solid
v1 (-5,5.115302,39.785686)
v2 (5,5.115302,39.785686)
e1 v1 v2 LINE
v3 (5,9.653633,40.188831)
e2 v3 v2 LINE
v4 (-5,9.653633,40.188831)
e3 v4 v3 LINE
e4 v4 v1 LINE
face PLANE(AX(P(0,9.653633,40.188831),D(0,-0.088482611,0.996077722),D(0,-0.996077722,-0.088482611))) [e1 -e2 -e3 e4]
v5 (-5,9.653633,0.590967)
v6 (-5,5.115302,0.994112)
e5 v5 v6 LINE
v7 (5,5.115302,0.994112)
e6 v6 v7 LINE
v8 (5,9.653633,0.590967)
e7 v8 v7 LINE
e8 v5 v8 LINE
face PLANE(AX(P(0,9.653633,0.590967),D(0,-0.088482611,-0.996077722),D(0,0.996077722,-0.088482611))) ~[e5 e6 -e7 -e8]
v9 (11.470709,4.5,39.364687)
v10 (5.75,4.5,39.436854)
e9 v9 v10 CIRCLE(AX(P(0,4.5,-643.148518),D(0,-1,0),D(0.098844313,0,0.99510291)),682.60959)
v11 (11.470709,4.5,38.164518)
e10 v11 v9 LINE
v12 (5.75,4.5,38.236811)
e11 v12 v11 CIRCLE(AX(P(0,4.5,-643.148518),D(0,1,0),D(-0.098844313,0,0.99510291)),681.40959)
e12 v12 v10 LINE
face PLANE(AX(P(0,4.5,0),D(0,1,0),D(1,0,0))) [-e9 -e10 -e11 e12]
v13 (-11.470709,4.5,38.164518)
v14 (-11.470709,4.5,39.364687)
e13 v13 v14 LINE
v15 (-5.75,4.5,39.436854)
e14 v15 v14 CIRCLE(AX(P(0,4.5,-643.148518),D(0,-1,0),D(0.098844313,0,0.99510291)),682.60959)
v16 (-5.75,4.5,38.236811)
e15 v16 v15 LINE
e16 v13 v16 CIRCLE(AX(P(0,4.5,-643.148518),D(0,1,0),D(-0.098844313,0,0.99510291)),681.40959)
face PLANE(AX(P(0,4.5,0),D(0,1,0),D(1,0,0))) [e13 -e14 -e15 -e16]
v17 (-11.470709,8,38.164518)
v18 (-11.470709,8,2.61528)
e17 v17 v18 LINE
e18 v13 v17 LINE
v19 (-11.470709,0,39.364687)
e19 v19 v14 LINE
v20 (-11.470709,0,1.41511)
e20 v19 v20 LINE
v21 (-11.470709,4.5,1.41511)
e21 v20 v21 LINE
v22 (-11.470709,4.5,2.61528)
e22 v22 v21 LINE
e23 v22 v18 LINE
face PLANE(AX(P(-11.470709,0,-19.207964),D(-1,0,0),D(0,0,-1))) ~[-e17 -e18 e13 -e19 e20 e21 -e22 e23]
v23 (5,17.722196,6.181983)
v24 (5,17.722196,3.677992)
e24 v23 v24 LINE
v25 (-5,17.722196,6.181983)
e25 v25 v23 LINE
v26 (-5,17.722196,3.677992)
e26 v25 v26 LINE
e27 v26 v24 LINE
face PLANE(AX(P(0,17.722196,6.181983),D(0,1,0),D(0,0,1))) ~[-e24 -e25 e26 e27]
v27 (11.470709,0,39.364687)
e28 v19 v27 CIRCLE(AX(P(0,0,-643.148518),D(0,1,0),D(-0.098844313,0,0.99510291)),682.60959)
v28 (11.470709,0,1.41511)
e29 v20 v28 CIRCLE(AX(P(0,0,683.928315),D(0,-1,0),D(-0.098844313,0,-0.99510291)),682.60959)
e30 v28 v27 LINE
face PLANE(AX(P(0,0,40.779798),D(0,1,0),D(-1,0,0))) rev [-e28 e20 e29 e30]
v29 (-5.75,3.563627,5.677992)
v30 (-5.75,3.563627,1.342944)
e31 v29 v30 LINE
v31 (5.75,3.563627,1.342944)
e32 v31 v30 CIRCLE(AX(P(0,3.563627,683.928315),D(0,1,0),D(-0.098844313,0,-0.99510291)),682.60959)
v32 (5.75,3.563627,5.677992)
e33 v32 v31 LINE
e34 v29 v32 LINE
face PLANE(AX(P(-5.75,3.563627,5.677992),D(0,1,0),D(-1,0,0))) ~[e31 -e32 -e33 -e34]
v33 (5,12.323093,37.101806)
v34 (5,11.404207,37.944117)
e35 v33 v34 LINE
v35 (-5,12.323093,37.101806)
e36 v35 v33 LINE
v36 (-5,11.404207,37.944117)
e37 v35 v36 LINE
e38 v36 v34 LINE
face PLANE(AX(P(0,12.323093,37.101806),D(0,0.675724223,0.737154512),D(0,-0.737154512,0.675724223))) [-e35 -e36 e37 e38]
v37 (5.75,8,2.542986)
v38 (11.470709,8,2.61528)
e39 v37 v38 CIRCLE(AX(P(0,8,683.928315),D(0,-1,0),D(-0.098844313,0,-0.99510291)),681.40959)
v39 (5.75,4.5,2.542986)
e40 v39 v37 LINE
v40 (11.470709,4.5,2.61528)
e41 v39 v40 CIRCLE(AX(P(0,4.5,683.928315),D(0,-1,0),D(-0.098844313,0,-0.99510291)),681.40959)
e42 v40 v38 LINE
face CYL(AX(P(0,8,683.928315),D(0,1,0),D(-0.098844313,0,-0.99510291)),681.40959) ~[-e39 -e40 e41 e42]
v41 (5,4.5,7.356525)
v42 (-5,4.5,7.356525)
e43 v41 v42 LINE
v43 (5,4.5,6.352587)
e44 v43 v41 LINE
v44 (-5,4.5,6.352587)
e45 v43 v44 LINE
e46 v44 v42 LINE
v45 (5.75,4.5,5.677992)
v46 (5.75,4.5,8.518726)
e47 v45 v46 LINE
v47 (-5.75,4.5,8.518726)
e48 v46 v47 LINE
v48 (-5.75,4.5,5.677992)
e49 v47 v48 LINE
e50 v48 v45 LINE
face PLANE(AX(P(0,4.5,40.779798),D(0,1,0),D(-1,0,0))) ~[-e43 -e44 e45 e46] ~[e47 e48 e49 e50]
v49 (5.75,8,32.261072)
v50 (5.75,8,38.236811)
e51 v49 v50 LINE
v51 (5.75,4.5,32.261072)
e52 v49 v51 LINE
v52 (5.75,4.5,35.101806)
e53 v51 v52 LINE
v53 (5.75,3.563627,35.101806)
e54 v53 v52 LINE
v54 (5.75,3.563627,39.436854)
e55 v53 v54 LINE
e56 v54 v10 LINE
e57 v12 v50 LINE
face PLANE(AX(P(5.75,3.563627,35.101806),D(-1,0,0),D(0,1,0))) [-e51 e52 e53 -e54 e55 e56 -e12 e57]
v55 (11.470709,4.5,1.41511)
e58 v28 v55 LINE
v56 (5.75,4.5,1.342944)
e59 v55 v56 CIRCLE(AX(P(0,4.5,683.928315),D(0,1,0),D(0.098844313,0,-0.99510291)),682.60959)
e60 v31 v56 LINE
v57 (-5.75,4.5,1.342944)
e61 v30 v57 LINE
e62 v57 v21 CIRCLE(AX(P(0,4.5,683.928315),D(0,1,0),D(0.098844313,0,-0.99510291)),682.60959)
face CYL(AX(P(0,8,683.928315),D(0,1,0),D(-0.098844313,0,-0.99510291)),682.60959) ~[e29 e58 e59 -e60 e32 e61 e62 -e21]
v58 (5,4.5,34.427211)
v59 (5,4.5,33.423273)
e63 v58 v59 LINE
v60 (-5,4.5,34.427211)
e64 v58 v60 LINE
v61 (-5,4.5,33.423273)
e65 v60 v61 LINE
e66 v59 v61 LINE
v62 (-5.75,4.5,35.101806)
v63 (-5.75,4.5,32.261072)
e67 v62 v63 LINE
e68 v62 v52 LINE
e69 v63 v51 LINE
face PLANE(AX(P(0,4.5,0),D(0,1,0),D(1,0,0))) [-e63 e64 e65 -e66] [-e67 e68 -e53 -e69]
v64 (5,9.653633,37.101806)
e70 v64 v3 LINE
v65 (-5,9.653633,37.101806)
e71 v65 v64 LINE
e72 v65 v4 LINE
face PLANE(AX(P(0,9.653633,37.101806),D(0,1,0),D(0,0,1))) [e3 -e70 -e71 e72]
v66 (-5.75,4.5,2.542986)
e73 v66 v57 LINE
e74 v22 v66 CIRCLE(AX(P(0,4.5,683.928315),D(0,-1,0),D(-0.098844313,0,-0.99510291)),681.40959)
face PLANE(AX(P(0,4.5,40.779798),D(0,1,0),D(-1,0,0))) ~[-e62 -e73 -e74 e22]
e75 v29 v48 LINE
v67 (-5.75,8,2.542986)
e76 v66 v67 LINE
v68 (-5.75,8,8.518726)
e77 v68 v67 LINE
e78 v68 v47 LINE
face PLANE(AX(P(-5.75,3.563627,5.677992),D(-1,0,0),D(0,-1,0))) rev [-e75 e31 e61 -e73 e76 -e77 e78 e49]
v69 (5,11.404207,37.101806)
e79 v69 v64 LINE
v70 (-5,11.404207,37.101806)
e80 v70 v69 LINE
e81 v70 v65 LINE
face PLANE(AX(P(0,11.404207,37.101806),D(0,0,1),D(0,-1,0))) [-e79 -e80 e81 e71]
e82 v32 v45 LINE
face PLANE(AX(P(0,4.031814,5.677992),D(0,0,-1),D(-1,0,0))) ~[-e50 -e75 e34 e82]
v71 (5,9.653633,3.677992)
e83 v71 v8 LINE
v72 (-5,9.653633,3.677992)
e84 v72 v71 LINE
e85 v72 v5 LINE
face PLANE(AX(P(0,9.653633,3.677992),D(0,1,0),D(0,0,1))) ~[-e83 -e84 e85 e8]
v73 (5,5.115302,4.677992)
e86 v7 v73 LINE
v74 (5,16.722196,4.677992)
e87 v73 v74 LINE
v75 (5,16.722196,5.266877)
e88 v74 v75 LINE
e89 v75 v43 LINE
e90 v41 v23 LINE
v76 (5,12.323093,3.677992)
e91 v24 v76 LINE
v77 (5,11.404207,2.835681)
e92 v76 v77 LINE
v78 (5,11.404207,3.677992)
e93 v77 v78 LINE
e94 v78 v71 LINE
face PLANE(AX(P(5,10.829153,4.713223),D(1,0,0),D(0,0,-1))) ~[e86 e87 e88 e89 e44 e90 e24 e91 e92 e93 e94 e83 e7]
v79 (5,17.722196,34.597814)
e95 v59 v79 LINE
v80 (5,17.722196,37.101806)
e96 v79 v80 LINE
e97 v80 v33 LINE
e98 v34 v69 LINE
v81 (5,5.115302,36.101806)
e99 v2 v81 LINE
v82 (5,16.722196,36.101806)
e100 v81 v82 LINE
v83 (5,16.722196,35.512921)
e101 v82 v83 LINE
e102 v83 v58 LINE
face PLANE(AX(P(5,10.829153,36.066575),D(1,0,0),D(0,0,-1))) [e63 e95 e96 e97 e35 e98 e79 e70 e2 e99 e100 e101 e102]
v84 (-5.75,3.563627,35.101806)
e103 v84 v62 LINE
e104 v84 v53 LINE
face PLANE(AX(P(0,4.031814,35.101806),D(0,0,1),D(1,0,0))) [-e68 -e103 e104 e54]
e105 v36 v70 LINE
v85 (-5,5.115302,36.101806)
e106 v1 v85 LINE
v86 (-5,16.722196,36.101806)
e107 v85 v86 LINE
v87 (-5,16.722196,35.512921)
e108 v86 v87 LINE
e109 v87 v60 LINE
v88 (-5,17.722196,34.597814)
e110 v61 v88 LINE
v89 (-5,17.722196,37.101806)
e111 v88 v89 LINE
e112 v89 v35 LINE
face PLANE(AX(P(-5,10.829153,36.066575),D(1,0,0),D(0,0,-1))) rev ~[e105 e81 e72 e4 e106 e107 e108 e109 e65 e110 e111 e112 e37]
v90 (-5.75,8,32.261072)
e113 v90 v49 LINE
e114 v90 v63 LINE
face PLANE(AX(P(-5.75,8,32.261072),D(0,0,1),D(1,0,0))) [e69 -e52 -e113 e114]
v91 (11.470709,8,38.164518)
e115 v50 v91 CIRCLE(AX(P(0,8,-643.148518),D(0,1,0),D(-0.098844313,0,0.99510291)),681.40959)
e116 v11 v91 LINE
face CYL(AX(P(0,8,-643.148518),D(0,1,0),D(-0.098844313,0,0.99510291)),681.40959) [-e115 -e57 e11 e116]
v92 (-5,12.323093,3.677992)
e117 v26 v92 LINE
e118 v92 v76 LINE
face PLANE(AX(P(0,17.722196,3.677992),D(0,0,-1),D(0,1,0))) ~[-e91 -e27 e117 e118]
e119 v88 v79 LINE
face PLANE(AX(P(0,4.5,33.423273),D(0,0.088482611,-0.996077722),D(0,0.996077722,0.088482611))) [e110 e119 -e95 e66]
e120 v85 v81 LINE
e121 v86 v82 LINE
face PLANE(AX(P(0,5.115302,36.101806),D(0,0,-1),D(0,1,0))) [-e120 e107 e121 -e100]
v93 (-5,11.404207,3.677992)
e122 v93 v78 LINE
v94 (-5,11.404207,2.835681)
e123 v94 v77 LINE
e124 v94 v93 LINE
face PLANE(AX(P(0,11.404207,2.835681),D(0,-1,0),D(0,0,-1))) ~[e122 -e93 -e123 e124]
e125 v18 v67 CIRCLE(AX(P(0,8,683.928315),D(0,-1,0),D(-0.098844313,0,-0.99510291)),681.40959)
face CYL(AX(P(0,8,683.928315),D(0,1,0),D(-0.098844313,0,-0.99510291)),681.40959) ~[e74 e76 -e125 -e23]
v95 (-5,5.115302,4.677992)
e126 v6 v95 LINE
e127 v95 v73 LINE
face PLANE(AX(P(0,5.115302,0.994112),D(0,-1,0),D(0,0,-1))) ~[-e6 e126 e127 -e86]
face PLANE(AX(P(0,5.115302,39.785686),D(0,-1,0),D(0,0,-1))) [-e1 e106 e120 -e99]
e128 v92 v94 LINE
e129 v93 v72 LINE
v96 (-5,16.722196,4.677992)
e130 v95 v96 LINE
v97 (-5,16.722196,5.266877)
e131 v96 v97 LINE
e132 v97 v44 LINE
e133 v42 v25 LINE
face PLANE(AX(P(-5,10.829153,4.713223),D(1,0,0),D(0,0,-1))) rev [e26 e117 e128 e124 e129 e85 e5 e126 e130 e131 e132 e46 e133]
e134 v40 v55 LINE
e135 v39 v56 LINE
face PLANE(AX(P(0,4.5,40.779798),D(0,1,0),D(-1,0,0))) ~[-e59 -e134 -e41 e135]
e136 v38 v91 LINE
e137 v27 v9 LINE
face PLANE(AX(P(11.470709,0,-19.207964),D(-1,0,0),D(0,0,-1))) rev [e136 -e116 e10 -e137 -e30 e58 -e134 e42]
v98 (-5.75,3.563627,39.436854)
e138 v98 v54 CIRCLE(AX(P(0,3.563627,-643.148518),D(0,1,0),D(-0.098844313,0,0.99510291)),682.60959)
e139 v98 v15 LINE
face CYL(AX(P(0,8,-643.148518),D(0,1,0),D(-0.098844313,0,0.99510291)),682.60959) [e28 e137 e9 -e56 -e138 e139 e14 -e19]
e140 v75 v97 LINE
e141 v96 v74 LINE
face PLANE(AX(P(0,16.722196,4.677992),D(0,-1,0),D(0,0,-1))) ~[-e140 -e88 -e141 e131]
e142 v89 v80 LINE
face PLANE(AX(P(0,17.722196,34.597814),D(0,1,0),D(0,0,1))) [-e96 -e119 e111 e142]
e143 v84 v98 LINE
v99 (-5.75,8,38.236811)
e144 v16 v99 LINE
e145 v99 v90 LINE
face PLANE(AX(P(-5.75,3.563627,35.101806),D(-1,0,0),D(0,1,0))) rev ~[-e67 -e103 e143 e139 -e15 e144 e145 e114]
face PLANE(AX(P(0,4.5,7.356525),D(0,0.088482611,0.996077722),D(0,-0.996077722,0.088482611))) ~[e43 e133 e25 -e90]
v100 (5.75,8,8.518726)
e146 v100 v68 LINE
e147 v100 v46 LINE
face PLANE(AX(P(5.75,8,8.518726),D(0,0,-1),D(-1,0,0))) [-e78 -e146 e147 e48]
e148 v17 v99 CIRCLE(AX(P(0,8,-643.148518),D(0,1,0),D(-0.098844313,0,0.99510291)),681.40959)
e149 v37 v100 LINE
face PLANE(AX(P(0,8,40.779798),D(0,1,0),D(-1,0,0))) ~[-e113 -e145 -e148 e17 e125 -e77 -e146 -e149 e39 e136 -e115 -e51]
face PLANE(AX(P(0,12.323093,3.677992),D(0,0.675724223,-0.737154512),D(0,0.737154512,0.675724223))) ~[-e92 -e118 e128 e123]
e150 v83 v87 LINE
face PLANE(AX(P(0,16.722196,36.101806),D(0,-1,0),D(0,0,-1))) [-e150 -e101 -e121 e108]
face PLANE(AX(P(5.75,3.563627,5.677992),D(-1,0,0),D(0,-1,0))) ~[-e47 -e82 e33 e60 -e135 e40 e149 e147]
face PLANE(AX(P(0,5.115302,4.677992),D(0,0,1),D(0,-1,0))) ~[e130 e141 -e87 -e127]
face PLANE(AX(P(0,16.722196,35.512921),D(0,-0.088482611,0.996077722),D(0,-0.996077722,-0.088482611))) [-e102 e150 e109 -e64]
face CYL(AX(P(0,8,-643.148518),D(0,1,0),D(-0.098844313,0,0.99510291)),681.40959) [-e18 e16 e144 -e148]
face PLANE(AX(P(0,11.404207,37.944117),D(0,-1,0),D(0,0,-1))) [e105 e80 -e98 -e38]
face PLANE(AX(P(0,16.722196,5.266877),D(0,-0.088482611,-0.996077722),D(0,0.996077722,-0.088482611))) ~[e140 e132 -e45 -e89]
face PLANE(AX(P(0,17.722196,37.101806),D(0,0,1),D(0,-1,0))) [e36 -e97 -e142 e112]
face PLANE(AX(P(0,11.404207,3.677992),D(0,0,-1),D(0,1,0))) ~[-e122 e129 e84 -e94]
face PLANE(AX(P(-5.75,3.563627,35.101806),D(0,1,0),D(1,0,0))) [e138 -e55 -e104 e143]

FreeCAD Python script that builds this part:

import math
import FreeCAD as App
import Part
import Sketcher
from FreeCAD import Vector

doc = App.newDocument("Part")
body = doc.addObject("PartDesign::Body", "Body")

# Sketch on XZ plane
sketch1 = doc.addObject("Sketcher::SketchObject", "Sketch")
body.addObject(sketch1)
sketch1.AttachmentSupport = (doc.XZ_Plane, [""])
sketch1.MapMode = "FlatFace"
sketch1.addGeometry(Part.LineSegment(Vector(-80, -40, 0), Vector(-80, 40, 0)), False)
sketch1.addGeometry(Part.LineSegment(Vector(-80, 40, 0), Vector(80, 40, 0)), False)
sketch1.addGeometry(Part.LineSegment(Vector(80, 40, 0), Vector(80, -40, 0)), False)
sketch1.addGeometry(Part.LineSegment(Vector(80, -40, 0), Vector(-80, -40, 0)), False)
sketch1.addConstraint(Sketcher.Constraint("Coincident", 0, 2, 1, 1))
sketch1.addConstraint(Sketcher.Constraint("Coincident", 1, 2, 2, 1))
sketch1.addConstraint(Sketcher.Constraint("Coincident", 2, 2, 3, 1))
sketch1.addConstraint(Sketcher.Constraint("Coincident", 3, 2, 0, 1))
sketch1.addConstraint(Sketcher.Constraint("Vertical", 0))
sketch1.addConstraint(Sketcher.Constraint("Horizontal", 1))
sketch1.addConstraint(Sketcher.Constraint("Vertical", 2))
sketch1.addConstraint(Sketcher.Constraint("Horizontal", 3))
sketch1.addConstraint(Sketcher.Constraint("Symmetric", 0, 2, 2, 2, -1, 1))
sketch1.addConstraint(Sketcher.Constraint("DistanceX", 1, 1, 1, 2, 160.0))
sketch1.addConstraint(Sketcher.Constraint("DistanceY", 0, 1, 0, 2, 80.0))
pad1 = doc.addObject("PartDesign::Pad", "Pad")
body.addObject(pad1)
pad1.Profile = sketch1
pad1.Length = 8
pad1.Reversed = True

# Sketch on XZ plane
sketch2 = doc.addObject("Sketcher::SketchObject", "Sketch001")
body.addObject(sketch2)
sketch2.AttachmentSupport = (doc.XZ_Plane, [""])
sketch2.MapMode = "FlatFace"
sketch2.AttachmentOffset = App.Placement(Vector(0, 0, -8), App.Rotation())
sketch2.addGeometry(Part.LineSegment(Vector(-80, -40, 0), Vector(-80, 40, 0)), False)
sketch2.addGeometry(Part.LineSegment(Vector(-80, 40, 0), Vector(80, 40, 0)), False)
sketch2.addGeometry(Part.LineSegment(Vector(80, 40, 0), Vector(80, -40, 0)), False)
sketch2.addGeometry(Part.LineSegment(Vector(80, -40, 0), Vector(-80, -40, 0)), False)
sketch2.addGeometry(Part.ArcOfCircle(Part.Circle(Vector(-66.84437, 29.798915, 0), Vector(0, 0, 1), 6.350455), math.radians(95.672625), math.radians(168.482555)), False)
sketch2.addGeometry(Part.ArcOfCircle(Part.Circle(Vector(79.394062, 0, 0), Vector(0, 0, 1), 155.594062), math.radians(168.482555), math.radians(191.517445)), False)
sketch2.addGeometry(Part.ArcOfCircle(Part.Circle(Vector(-66.84437, -29.798915, 0), Vector(0, 0, 1), 6.350455), math.radians(-168.482555), math.radians(-95.672625)), False)
sketch2.addGeometry(Part.ArcOfCircle(Part.Circle(Vector(0, 643.148518, 0), Vector(0, 0, 1), 682.60959), math.radians(-95.672625), math.radians(-84.327375)), False)
sketch2.addGeometry(Part.ArcOfCircle(Part.Circle(Vector(66.84437, -29.798915, 0), Vector(0, 0, 1), 6.350455), math.radians(-84.327375), math.radians(-11.517445)), False)
sketch2.addGeometry(Part.ArcOfCircle(Part.Circle(Vector(-79.394062, 0, 0), Vector(0, 0, 1), 155.594062), math.radians(-11.517445), math.radians(11.517445)), False)
sketch2.addGeometry(Part.ArcOfCircle(Part.Circle(Vector(66.84437, 29.798915, 0), Vector(0, 0, 1), 6.350455), math.radians(11.517445), math.radians(84.327375)), False)
sketch2.addGeometry(Part.ArcOfCircle(Part.Circle(Vector(0, -643.148518, 0), Vector(0, 0, 1), 682.60959), math.radians(84.327375), math.radians(95.672625)), False)
sketch2.addConstraint(Sketcher.Constraint("Coincident", 0, 2, 1, 1))
sketch2.addConstraint(Sketcher.Constraint("Coincident", 1, 2, 2, 1))
sketch2.addConstraint(Sketcher.Constraint("Coincident", 2, 2, 3, 1))
sketch2.addConstraint(Sketcher.Constraint("Coincident", 3, 2, 0, 1))
sketch2.addConstraint(Sketcher.Constraint("Tangent", 4, 2, 5, 1))
sketch2.addConstraint(Sketcher.Constraint("Tangent", 5, 2, 6, 1))
sketch2.addConstraint(Sketcher.Constraint("Tangent", 6, 2, 7, 1))
sketch2.addConstraint(Sketcher.Constraint("Tangent", 7, 2, 8, 1))
sketch2.addConstraint(Sketcher.Constraint("Tangent", 8, 2, 9, 1))
sketch2.addConstraint(Sketcher.Constraint("Tangent", 9, 2, 10, 1))
sketch2.addConstraint(Sketcher.Constraint("Tangent", 10, 2, 11, 1))
sketch2.addConstraint(Sketcher.Constraint("Tangent", 11, 2, 4, 1))
sketch2.addConstraint(Sketcher.Constraint("Vertical", 0))
sketch2.addConstraint(Sketcher.Constraint("Horizontal", 1))
sketch2.addConstraint(Sketcher.Constraint("Vertical", 2))
sketch2.addConstraint(Sketcher.Constraint("Horizontal", 3))
sketch2.addConstraint(Sketcher.Constraint("Equal", 4, 6))
sketch2.addConstraint(Sketcher.Constraint("Equal", 6, 8))
sketch2.addConstraint(Sketcher.Constraint("Equal", 5, 9))
sketch2.addConstraint(Sketcher.Constraint("Equal", 8, 10))
sketch2.addConstraint(Sketcher.Constraint("Equal", 7, 11))
sketch2.addConstraint(Sketcher.Constraint("Symmetric", 4, 3, 8, 3, -1, 1))
sketch2.addConstraint(Sketcher.Constraint("Symmetric", 6, 3, 10, 3, -1, 1))
sketch2.addConstraint(Sketcher.Constraint("Symmetric", 0, 2, 2, 2, -1, 1))
sketch2.addConstraint(Sketcher.Constraint("Symmetric", 6, 3, 8, 3, -2))
sketch2.addConstraint(Sketcher.Constraint("DistanceX", 1, 1, 1, 2, 160.0))
sketch2.addConstraint(Sketcher.Constraint("DistanceY", 0, 1, 0, 2, 80.0))
sketch2.addConstraint(Sketcher.Constraint("Radius", 7, 682.60959))
sketch2.addConstraint(Sketcher.Constraint("Radius", 4, 6.350455))
sketch2.addConstraint(Sketcher.Constraint("Radius", 5, 155.594062))
sketch2.addConstraint(Sketcher.Constraint("DistanceX", 4, 3, -1, 1, 66.84437))
sketch2.addConstraint(Sketcher.Constraint("DistanceY", 6, 2, -1, 1, 36.118272))
pocket1 = doc.addObject("PartDesign::Pocket", "Pocket")
body.addObject(pocket1)
pocket1.Profile = sketch2
pocket1.Type = "ThroughAll"
pocket1.Reversed = True

# Sketch on XZ plane
sketch3 = doc.addObject("Sketcher::SketchObject", "Sketch002")
body.addObject(sketch3)
sketch3.AttachmentSupport = (doc.XZ_Plane, [""])
sketch3.MapMode = "FlatFace"
sketch3.AttachmentOffset = App.Placement(Vector(0, 0, -8), App.Rotation())
sketch3.addGeometry(Part.ArcOfCircle(Part.Circle(Vector(0, -643.148518, 0), Vector(0, 0, 1), 682.60959), math.radians(84.327375), math.radians(95.672625)), False)
sketch3.addGeometry(Part.ArcOfCircle(Part.Circle(Vector(66.84437, 29.798915, 0), Vector(0, 0, 1), 6.350455), math.radians(11.517445), math.radians(84.327375)), False)
sketch3.addGeometry(Part.ArcOfCircle(Part.Circle(Vector(-79.394062, 0, 0), Vector(0, 0, 1), 155.594062), math.radians(-11.517445), math.radians(11.517445)), False)
sketch3.addGeometry(Part.ArcOfCircle(Part.Circle(Vector(66.84437, -29.798915, 0), Vector(0, 0, 1), 6.350455), math.radians(-84.327375), math.radians(-11.517445)), False)
sketch3.addGeometry(Part.ArcOfCircle(Part.Circle(Vector(0, 643.148518, 0), Vector(0, 0, 1), 682.60959), math.radians(-95.672625), math.radians(-84.327375)), False)
sketch3.addGeometry(Part.ArcOfCircle(Part.Circle(Vector(-66.84437, -29.798915, 0), Vector(0, 0, 1), 6.350455), math.radians(-168.482555), math.radians(-95.672625)), False)
sketch3.addGeometry(Part.ArcOfCircle(Part.Circle(Vector(79.394062, 0, 0), Vector(0, 0, 1), 155.594062), math.radians(168.482555), math.radians(191.517445)), False)
sketch3.addGeometry(Part.ArcOfCircle(Part.Circle(Vector(-66.84437, 29.798915, 0), Vector(0, 0, 1), 6.350455), math.radians(95.672625), math.radians(168.482555)), False)
sketch3.addGeometry(Part.ArcOfCircle(Part.Circle(Vector(-66.84437, 29.798915, 0), Vector(0, 0, 1), 5.150455), math.radians(95.672625), math.radians(168.482556)), False)
sketch3.addGeometry(Part.ArcOfCircle(Part.Circle(Vector(79.394062, 0, 0), Vector(0, 0, 1), 154.394062), math.radians(168.482555), math.radians(191.517445)), False)
sketch3.addGeometry(Part.ArcOfCircle(Part.Circle(Vector(-66.84437, -29.798915, 0), Vector(0, 0, 1), 5.150455), math.radians(-168.482556), math.radians(-95.672625)), False)
sketch3.addGeometry(Part.ArcOfCircle(Part.Circle(Vector(0, 643.148518, 0), Vector(0, 0, 1), 681.40959), math.radians(-95.672625), math.radians(-84.327375)), False)
sketch3.addGeometry(Part.ArcOfCircle(Part.Circle(Vector(66.84437, -29.798915, 0), Vector(0, 0, 1), 5.150455), math.radians(-84.327375), math.radians(-11.517444)), False)
sketch3.addGeometry(Part.ArcOfCircle(Part.Circle(Vector(-79.394062, 0, 0), Vector(0, 0, 1), 154.394062), math.radians(-11.517445), math.radians(11.517445)), False)
sketch3.addGeometry(Part.ArcOfCircle(Part.Circle(Vector(66.84437, 29.798915, 0), Vector(0, 0, 1), 5.150455), math.radians(11.517444), math.radians(84.327375)), False)
sketch3.addGeometry(Part.ArcOfCircle(Part.Circle(Vector(0, -643.148518, 0), Vector(0, 0, 1), 681.40959), math.radians(84.327375), math.radians(95.672625)), False)
sketch3.addConstraint(Sketcher.Constraint("Tangent", 0, 1, 1, 2))
sketch3.addConstraint(Sketcher.Constraint("Tangent", 1, 1, 2, 2))
sketch3.addConstraint(Sketcher.Constraint("Tangent", 2, 1, 3, 2))
sketch3.addConstraint(Sketcher.Constraint("Tangent", 3, 1, 4, 2))
sketch3.addConstraint(Sketcher.Constraint("Tangent", 4, 1, 5, 2))
sketch3.addConstraint(Sketcher.Constraint("Tangent", 5, 1, 6, 2))
sketch3.addConstraint(Sketcher.Constraint("Tangent", 6, 1, 7, 2))
sketch3.addConstraint(Sketcher.Constraint("Tangent", 7, 1, 0, 2))
sketch3.addConstraint(Sketcher.Constraint("Tangent", 8, 2, 9, 1))
sketch3.addConstraint(Sketcher.Constraint("Tangent", 9, 2, 10, 1))
sketch3.addConstraint(Sketcher.Constraint("Tangent", 10, 2, 11, 1))
sketch3.addConstraint(Sketcher.Constraint("Tangent", 11, 2, 12, 1))
sketch3.addConstraint(Sketcher.Constraint("Tangent", 12, 2, 13, 1))
sketch3.addConstraint(Sketcher.Constraint("Tangent", 13, 2, 14, 1))
sketch3.addConstraint(Sketcher.Constraint("Tangent", 14, 2, 15, 1))
sketch3.addConstraint(Sketcher.Constraint("Tangent", 15, 2, 8, 1))
sketch3.addConstraint(Sketcher.Constraint("Coincident", 8, 3, 7, 3))
sketch3.addConstraint(Sketcher.Constraint("Coincident", 9, 3, 6, 3))
sketch3.addConstraint(Sketcher.Constraint("Coincident", 10, 3, 5, 3))
sketch3.addConstraint(Sketcher.Constraint("Coincident", 11, 3, 4, 3))
sketch3.addConstraint(Sketcher.Constraint("Coincident", 12, 3, 3, 3))
sketch3.addConstraint(Sketcher.Constraint("Coincident", 13, 3, 2, 3))
sketch3.addConstraint(Sketcher.Constraint("Coincident", 14, 3, 1, 3))
sketch3.addConstraint(Sketcher.Constraint("Equal", 1, 3))
sketch3.addConstraint(Sketcher.Constraint("Equal", 0, 4))
sketch3.addConstraint(Sketcher.Constraint("Equal", 3, 5))
sketch3.addConstraint(Sketcher.Constraint("Equal", 2, 6))
sketch3.addConstraint(Sketcher.Constraint("Equal", 5, 7))
sketch3.addConstraint(Sketcher.Constraint("Equal", 11, 15))
sketch3.addConstraint(Sketcher.Constraint("Symmetric", 0, 3, 4, 3, -1, 1))
sketch3.addConstraint(Sketcher.Constraint("Symmetric", 2, 3, 6, 3, -1, 1))
sketch3.addConstraint(Sketcher.Constraint("Symmetric", 3, 3, 5, 3, -2))
sketch3.addConstraint(Sketcher.Constraint("Radius", 0, 682.60959))
sketch3.addConstraint(Sketcher.Constraint("Radius", 11, 681.40959))
sketch3.addConstraint(Sketcher.Constraint("Radius", 1, 6.350455))
sketch3.addConstraint(Sketcher.Constraint("Radius", 2, 155.594062))
sketch3.addConstraint(Sketcher.Constraint("DistanceX", -1, 1, 1, 3, 66.84437))
sketch3.addConstraint(Sketcher.Constraint("DistanceY", -1, 1, 0, 1, 36.118272))
pocket2 = doc.addObject("PartDesign::Pocket", "Pocket001")
body.addObject(pocket2)
pocket2.Profile = sketch3
pocket2.Length = 3.5
pocket2.Reversed = True

# Sketch on XZ plane
sketch4 = doc.addObject("Sketcher::SketchObject", "Sketch003")
body.addObject(sketch4)
sketch4.AttachmentSupport = (doc.XZ_Plane, [""])
sketch4.MapMode = "FlatFace"
sketch4.AttachmentOffset = App.Placement(Vector(0, 0, -8), App.Rotation())
sketch4.addGeometry(Part.LineSegment(Vector(-5.25, 32.761072, 0), Vector(-5.25, 43.761072, 0)), False)
sketch4.addGeometry(Part.LineSegment(Vector(-5.25, 43.761072, 0), Vector(5.25, 43.761072, 0)), False)
sketch4.addGeometry(Part.LineSegment(Vector(5.25, 43.761072, 0), Vector(5.25, 32.761072, 0)), False)
sketch4.addGeometry(Part.LineSegment(Vector(5.25, 32.761072, 0), Vector(-5.25, 32.761072, 0)), False)
sketch4.addConstraint(Sketcher.Constraint("Coincident", 0, 2, 1, 1))
sketch4.addConstraint(Sketcher.Constraint("Coincident", 1, 2, 2, 1))
sketch4.addConstraint(Sketcher.Constraint("Coincident", 2, 2, 3, 1))
sketch4.addConstraint(Sketcher.Constraint("Coincident", 3, 2, 0, 1))
sketch4.addConstraint(Sketcher.Constraint("Vertical", 0))
sketch4.addConstraint(Sketcher.Constraint("Horizontal", 1))
sketch4.addConstraint(Sketcher.Constraint("Vertical", 2))
sketch4.addConstraint(Sketcher.Constraint("Horizontal", 3))
sketch4.addConstraint(Sketcher.Constraint("DistanceY", 0, 1, 0, 2, 11.0))
sketch4.addConstraint(Sketcher.Constraint("DistanceX", 1, 1, 1, 2, 10.5))
sketch4.addConstraint(Sketcher.Constraint("DistanceX", 0, 2, -1, 1, 5.25))
sketch4.addConstraint(Sketcher.Constraint("DistanceY", -1, 1, 0, 2, 43.761072))
pocket3 = doc.addObject("PartDesign::Pocket", "Pocket002")
body.addObject(pocket3)
pocket3.Profile = sketch4
pocket3.Length = 3.5
pocket3.Reversed = True

# Sketch on YZ plane
sketch5 = doc.addObject("Sketcher::SketchObject", "Sketch004")
body.addObject(sketch5)
sketch5.AttachmentSupport = (doc.YZ_Plane, [""])
sketch5.MapMode = "FlatFace"
sketch5.addGeometry(Part.LineSegment(Vector(4.5, 33.423273, 0), Vector(17.722196, 34.597814, 0)), False)
sketch5.addGeometry(Part.LineSegment(Vector(17.722196, 34.597814, 0), Vector(17.722196, 37.101806, 0)), False)
sketch5.addGeometry(Part.LineSegment(Vector(17.722196, 37.101806, 0), Vector(12.323093, 37.101806, 0)), False)
sketch5.addGeometry(Part.LineSegment(Vector(12.323093, 37.101806, 0), Vector(11.404207, 37.944117, 0)), False)
sketch5.addGeometry(Part.LineSegment(Vector(11.404207, 37.944117, 0), Vector(11.404207, 37.101806, 0)), False)
sketch5.addGeometry(Part.LineSegment(Vector(11.404207, 37.101806, 0), Vector(9.653633, 37.101806, 0)), False)
sketch5.addGeometry(Part.LineSegment(Vector(9.653633, 37.101806, 0), Vector(9.653633, 40.188831, 0)), False)
sketch5.addGeometry(Part.LineSegment(Vector(9.653633, 40.188831, 0), Vector(5.115302, 39.785686, 0)), False)
sketch5.addGeometry(Part.LineSegment(Vector(5.115302, 39.785686, 0), Vector(5.115302, 36.101806, 0)), False)
sketch5.addGeometry(Part.LineSegment(Vector(5.115302, 36.101806, 0), Vector(16.722196, 36.101806, 0)), False)
sketch5.addGeometry(Part.LineSegment(Vector(16.722196, 36.101806, 0), Vector(16.722196, 35.512921, 0)), False)
sketch5.addGeometry(Part.LineSegment(Vector(16.722196, 35.512921, 0), Vector(4.5, 34.427211, 0)), False)
sketch5.addGeometry(Part.LineSegment(Vector(4.5, 34.427211, 0), Vector(4.5, 33.423273, 0)), False)
sketch5.addConstraint(Sketcher.Constraint("Coincident", 0, 2, 1, 1))
sketch5.addConstraint(Sketcher.Constraint("Coincident", 1, 2, 2, 1))
sketch5.addConstraint(Sketcher.Constraint("Coincident", 2, 2, 3, 1))
sketch5.addConstraint(Sketcher.Constraint("Coincident", 3, 2, 4, 1))
sketch5.addConstraint(Sketcher.Constraint("Coincident", 4, 2, 5, 1))
sketch5.addConstraint(Sketcher.Constraint("Coincident", 5, 2, 6, 1))
sketch5.addConstraint(Sketcher.Constraint("Coincident", 6, 2, 7, 1))
sketch5.addConstraint(Sketcher.Constraint("Coincident", 7, 2, 8, 1))
sketch5.addConstraint(Sketcher.Constraint("Coincident", 8, 2, 9, 1))
sketch5.addConstraint(Sketcher.Constraint("Coincident", 9, 2, 10, 1))
sketch5.addConstraint(Sketcher.Constraint("Coincident", 10, 2, 11, 1))
sketch5.addConstraint(Sketcher.Constraint("Coincident", 11, 2, 12, 1))
sketch5.addConstraint(Sketcher.Constraint("Coincident", 12, 2, 0, 1))
sketch5.addConstraint(Sketcher.Constraint("Vertical", 1))
sketch5.addConstraint(Sketcher.Constraint("Horizontal", 2))
sketch5.addConstraint(Sketcher.Constraint("Vertical", 4))
sketch5.addConstraint(Sketcher.Constraint("Horizontal", 5))
sketch5.addConstraint(Sketcher.Constraint("Vertical", 6))
sketch5.addConstraint(Sketcher.Constraint("Vertical", 8))
sketch5.addConstraint(Sketcher.Constraint("Horizontal", 9))
sketch5.addConstraint(Sketcher.Constraint("Vertical", 10))
sketch5.addConstraint(Sketcher.Constraint("Vertical", 12))
sketch5.addConstraint(Sketcher.Constraint("Parallel", 0, 7))
sketch5.addConstraint(Sketcher.Constraint("Parallel", 7, 11))
sketch5.addConstraint(Sketcher.Constraint("Horizontal", 2, 2, 4, 2))
sketch5.addConstraint(Sketcher.Constraint("DistanceY", 8, 2, 5, 2, 1.0))
sketch5.addConstraint(Sketcher.Constraint("DistanceX", 9, 2, 1, 2, 1.0))
sketch5.addConstraint(Sketcher.Constraint("DistanceX", -1, 1, 11, 2, 4.5))
sketch5.addConstraint(Sketcher.Constraint("Distance", 7, 4.556202))
sketch5.addConstraint(Sketcher.Constraint("DistanceY", 1, 1, 1, 2, 2.503991))
sketch5.addConstraint(Sketcher.Constraint("DistanceY", 4, 2, 4, 1, 0.842311))
sketch5.addConstraint(Sketcher.Constraint("DistanceY", 8, 2, 8, 1, 3.68388))
sketch5.addConstraint(Sketcher.Constraint("DistanceX", -1, 1, 7, 2, 5.115302))
sketch5.addConstraint(Sketcher.Constraint("Distance", 0, 13.274261))
sketch5.addConstraint(Sketcher.Constraint("Distance", 3, 1.246531))
sketch5.addConstraint(Sketcher.Constraint("DistanceX", 2, 2, 2, 1, 5.399102))
sketch5.addConstraint(Sketcher.Constraint("DistanceX", 5, 2, 5, 1, 1.750574))
sketch5.addConstraint(Sketcher.Constraint("DistanceY", 10, 2, 10, 1, 0.588885))
sketch5.addConstraint(Sketcher.Constraint("DistanceY", -1, 1, 6, 2, 40.188831))
pad2 = doc.addObject("PartDesign::Pad", "Pad001")
body.addObject(pad2)
pad2.Profile = sketch5
pad2.Length = 10
pad2.Midplane = True

# Sketch on XZ plane
sketch6 = doc.addObject("Sketcher::SketchObject", "Sketch005")
body.addObject(sketch6)
sketch6.AttachmentSupport = (doc.XZ_Plane, [""])
sketch6.MapMode = "FlatFace"
sketch6.addGeometry(Part.LineSegment(Vector(-100.24884, -48.812728, 0), Vector(-100.24884, 85.953856, 0)), False)
sketch6.addGeometry(Part.LineSegment(Vector(-100.24884, 85.953856, 0), Vector(102.708299, 85.953856, 0)), False)
sketch6.addGeometry(Part.LineSegment(Vector(102.708299, 85.953856, 0), Vector(102.708299, -48.812728, 0)), False)
sketch6.addGeometry(Part.LineSegment(Vector(102.708299, -48.812728, 0), Vector(-100.24884, -48.812728, 0)), False)
sketch6.addGeometry(Part.LineSegment(Vector(11.470709, 59.987762, 0), Vector(-11.470709, 59.987762, 0)), False)
sketch6.addGeometry(Part.LineSegment(Vector(-11.470709, 59.987762, 0), Vector(-11.470709, 20.389899, 0)), False)
sketch6.addGeometry(Part.LineSegment(Vector(-11.470709, 20.389899, 0), Vector(11.470709, 20.389899, 0)), False)
sketch6.addGeometry(Part.LineSegment(Vector(11.470709, 20.389899, 0), Vector(11.470709, 59.987762, 0)), False)
sketch6.addConstraint(Sketcher.Constraint("Coincident", 0, 2, 1, 1))
sketch6.addConstraint(Sketcher.Constraint("Coincident", 1, 2, 2, 1))
sketch6.addConstraint(Sketcher.Constraint("Coincident", 2, 2, 3, 1))
sketch6.addConstraint(Sketcher.Constraint("Coincident", 3, 2, 0, 1))
sketch6.addConstraint(Sketcher.Constraint("Coincident", 4, 2, 5, 1))
sketch6.addConstraint(Sketcher.Constraint("Coincident", 5, 2, 6, 1))
sketch6.addConstraint(Sketcher.Constraint("Coincident", 6, 2, 7, 1))
sketch6.addConstraint(Sketcher.Constraint("Coincident", 7, 2, 4, 1))
sketch6.addConstraint(Sketcher.Constraint("Vertical", 0))
sketch6.addConstraint(Sketcher.Constraint("Horizontal", 1))
sketch6.addConstraint(Sketcher.Constraint("Vertical", 2))
sketch6.addConstraint(Sketcher.Constraint("Horizontal", 3))
sketch6.addConstraint(Sketcher.Constraint("Horizontal", 4))
sketch6.addConstraint(Sketcher.Constraint("Vertical", 5))
sketch6.addConstraint(Sketcher.Constraint("Horizontal", 6))
sketch6.addConstraint(Sketcher.Constraint("Vertical", 7))
sketch6.addConstraint(Sketcher.Constraint("DistanceX", 1, 1, 1, 2, 202.957138))
sketch6.addConstraint(Sketcher.Constraint("DistanceX", 4, 2, 4, 1, 22.941419))
sketch6.addConstraint(Sketcher.Constraint("DistanceX", -1, 1, 1, 2, 102.708299))
sketch6.addConstraint(Sketcher.Constraint("DistanceY", -1, 1, 5, 2, 20.389899))
sketch6.addConstraint(Sketcher.Constraint("DistanceY", 0, 1, 0, 2, 134.766584))
sketch6.addConstraint(Sketcher.Constraint("DistanceY", 5, 2, 5, 1, 39.597863))
sketch6.addConstraint(Sketcher.Constraint("DistanceX", 4, 2, -1, 1, 11.470709))
sketch6.addConstraint(Sketcher.Constraint("DistanceY", 3, 2, 4, 2, 108.80049))
pocket4 = doc.addObject("PartDesign::Pocket", "Pocket003")
body.addObject(pocket4)
pocket4.Profile = sketch6
pocket4.Length = 10
body2 = doc.addObject("PartDesign::Body", "Body001")
doc.recompute()

body2.BaseFeature = body
doc.recompute()

mirroring = doc.addObject("Part::Mirroring", "Mirroring")
mirroring.Source = body
mirroring.Base = Vector(-11.470709, 10, 20.389899)
mirroring.Normal = Vector(0, 0, 1)
body3 = doc.addObject("PartDesign::Body", "Body002")
body3.BaseFeature = mirroring
boolean = doc.addObject("PartDesign::Boolean", "Boolean")
body2.addObject(boolean)
boolean.Type = "Fuse"
boolean.addObjects([body3])
doc.recompute()

# Sketch on XZ plane
sketch7 = doc.addObject("Sketcher::SketchObject", "Sketch006")
body2.addObject(sketch7)
sketch7.AttachmentSupport = (doc.getObject("XZ_Plane001"), [""])
sketch7.MapMode = "FlatFace"
sketch7.AttachmentOffset = App.Placement(Vector(0, 0, -8), App.Rotation())
sketch7.addGeometry(Part.LineSegment(Vector(-5.75, 32.261072, 0), Vector(-5.75, 38.240847, 0)), False)
sketch7.addGeometry(Part.LineSegment(Vector(-5.75, 38.240847, 0), Vector(-5.25, 38.240847, 0)), False)
sketch7.addGeometry(Part.LineSegment(Vector(-5.25, 38.240847, 0), Vector(-5.25, 32.761072, 0)), False)
sketch7.addGeometry(Part.LineSegment(Vector(-5.25, 32.761072, 0), Vector(5.25, 32.761072, 0)), False)
sketch7.addGeometry(Part.LineSegment(Vector(5.25, 32.761072, 0), Vector(5.25, 38.240847, 0)), False)
sketch7.addGeometry(Part.LineSegment(Vector(5.25, 38.240847, 0), Vector(5.75, 38.240847, 0)), False)
sketch7.addGeometry(Part.LineSegment(Vector(5.75, 38.240847, 0), Vector(5.75, 32.261072, 0)), False)
sketch7.addGeometry(Part.LineSegment(Vector(5.75, 32.261072, 0), Vector(-5.75, 32.261072, 0)), False)
sketch7.addGeometry(Part.LineSegment(Vector(5.75, 8.518726, 0), Vector(5.75, 2.53895, 0)), False)
sketch7.addGeometry(Part.LineSegment(Vector(5.75, 2.53895, 0), Vector(5.25, 2.53895, 0)), False)
sketch7.addGeometry(Part.LineSegment(Vector(5.25, 2.53895, 0), Vector(5.25, 8.018726, 0)), False)
sketch7.addGeometry(Part.LineSegment(Vector(5.25, 8.018726, 0), Vector(-5.25, 8.018726, 0)), False)
sketch7.addGeometry(Part.LineSegment(Vector(-5.25, 8.018726, 0), Vector(-5.25, 2.53895, 0)), False)
sketch7.addGeometry(Part.LineSegment(Vector(-5.25, 2.53895, 0), Vector(-5.75, 2.53895, 0)), False)
sketch7.addGeometry(Part.LineSegment(Vector(-5.75, 2.53895, 0), Vector(-5.75, 8.518726, 0)), False)
sketch7.addGeometry(Part.LineSegment(Vector(-5.75, 8.518726, 0), Vector(5.75, 8.518726, 0)), False)
sketch7.addConstraint(Sketcher.Constraint("Coincident", 0, 2, 1, 1))
sketch7.addConstraint(Sketcher.Constraint("Coincident", 1, 2, 2, 1))
sketch7.addConstraint(Sketcher.Constraint("Coincident", 2, 2, 3, 1))
sketch7.addConstraint(Sketcher.Constraint("Coincident", 3, 2, 4, 1))
sketch7.addConstraint(Sketcher.Constraint("Coincident", 4, 2, 5, 1))
sketch7.addConstraint(Sketcher.Constraint("Coincident", 5, 2, 6, 1))
sketch7.addConstraint(Sketcher.Constraint("Coincident", 6, 2, 7, 1))
sketch7.addConstraint(Sketcher.Constraint("Coincident", 7, 2, 0, 1))
sketch7.addConstraint(Sketcher.Constraint("Coincident", 8, 2, 9, 1))
sketch7.addConstraint(Sketcher.Constraint("Coincident", 9, 2, 10, 1))
sketch7.addConstraint(Sketcher.Constraint("Coincident", 10, 2, 11, 1))
sketch7.addConstraint(Sketcher.Constraint("Coincident", 11, 2, 12, 1))
sketch7.addConstraint(Sketcher.Constraint("Coincident", 12, 2, 13, 1))
sketch7.addConstraint(Sketcher.Constraint("Coincident", 13, 2, 14, 1))
sketch7.addConstraint(Sketcher.Constraint("Coincident", 14, 2, 15, 1))
sketch7.addConstraint(Sketcher.Constraint("Coincident", 15, 2, 8, 1))
sketch7.addConstraint(Sketcher.Constraint("Vertical", 0))
sketch7.addConstraint(Sketcher.Constraint("Horizontal", 1))
sketch7.addConstraint(Sketcher.Constraint("Vertical", 2))
sketch7.addConstraint(Sketcher.Constraint("Horizontal", 3))
sketch7.addConstraint(Sketcher.Constraint("Vertical", 4))
sketch7.addConstraint(Sketcher.Constraint("Horizontal", 5))
sketch7.addConstraint(Sketcher.Constraint("Vertical", 6))
sketch7.addConstraint(Sketcher.Constraint("Horizontal", 7))
sketch7.addConstraint(Sketcher.Constraint("Vertical", 8))
sketch7.addConstraint(Sketcher.Constraint("Horizontal", 9))
sketch7.addConstraint(Sketcher.Constraint("Vertical", 10))
sketch7.addConstraint(Sketcher.Constraint("Horizontal", 11))
sketch7.addConstraint(Sketcher.Constraint("Vertical", 12))
sketch7.addConstraint(Sketcher.Constraint("Horizontal", 13))
sketch7.addConstraint(Sketcher.Constraint("Vertical", 14))
sketch7.addConstraint(Sketcher.Constraint("Horizontal", 15))
sketch7.addConstraint(Sketcher.Constraint("Symmetric", 1, 2, 4, 2, -2))
sketch7.addConstraint(Sketcher.Constraint("Symmetric", 9, 2, 12, 2, -2))
sketch7.addConstraint(Sketcher.Constraint("Vertical", 6, 2, 8, 2))
sketch7.addConstraint(Sketcher.Constraint("Vertical", 4, 2, 9, 2))
sketch7.addConstraint(Sketcher.Constraint("Vertical", 7, 2, 13, 2))
sketch7.addConstraint(Sketcher.Constraint("Equal", 1, 5))
sketch7.addConstraint(Sketcher.Constraint("Equal", 6, 8))
sketch7.addConstraint(Sketcher.Constraint("Equal", 4, 10))
sketch7.addConstraint(Sketcher.Constraint("DistanceX", 1, 1, 1, 2, 0.5))
sketch7.addConstraint(Sketcher.Constraint("DistanceX", 3, 1, 3, 2, 10.5))
sketch7.addConstraint(Sketcher.Constraint("DistanceY", 6, 2, 3, 2, 0.5))
sketch7.addConstraint(Sketcher.Constraint("DistanceY", 0, 1, 0, 2, 5.979775))
sketch7.addConstraint(Sketcher.Constraint("DistanceY", -1, 1, 8, 2, 2.53895))
sketch7.addConstraint(Sketcher.Constraint("DistanceY", 8, 2, 6, 2, 29.722122))
pocket5 = doc.addObject("PartDesign::Pocket", "Pocket004")
body2.addObject(pocket5)
pocket5.Profile = sketch7
pocket5.Length = 3.5
pocket5.Reversed = True

# Sketch on XY plane
sketch8 = doc.addObject("Sketcher::SketchObject", "Sketch007")
body2.addObject(sketch8)
sketch8.AttachmentSupport = (doc.getObject("XY_Plane001"), [""])
sketch8.MapMode = "FlatFace"
sketch8.AttachmentOffset = App.Placement(Vector(0, 0, 35.101806), App.Rotation())
sketch8.addGeometry(Part.LineSegment(Vector(-5.75, 4.5, 0), Vector(-5.75, 3.563627, 0)), False)
sketch8.addGeometry(Part.LineSegment(Vector(-5.75, 3.563627, 0), Vector(5.75, 3.563627, 0)), False)
sketch8.addGeometry(Part.LineSegment(Vector(5.75, 3.563627, 0), Vector(5.75, 4.5, 0)), False)
sketch8.addGeometry(Part.LineSegment(Vector(5.75, 4.5, 0), Vector(-5.75, 4.5, 0)), False)
sketch8.addConstraint(Sketcher.Constraint("Coincident", 0, 2, 1, 1))
sketch8.addConstraint(Sketcher.Constraint("Coincident", 1, 2, 2, 1))
sketch8.addConstraint(Sketcher.Constraint("Coincident", 2, 2, 3, 1))
sketch8.addConstraint(Sketcher.Constraint("Coincident", 3, 2, 0, 1))
sketch8.addConstraint(Sketcher.Constraint("Vertical", 0))
sketch8.addConstraint(Sketcher.Constraint("Horizontal", 1))
sketch8.addConstraint(Sketcher.Constraint("Vertical", 2))
sketch8.addConstraint(Sketcher.Constraint("Horizontal", 3))
sketch8.addConstraint(Sketcher.Constraint("DistanceX", 1, 1, 1, 2, 11.5))
sketch8.addConstraint(Sketcher.Constraint("DistanceY", -1, 1, 2, 2, 4.5))
sketch8.addConstraint(Sketcher.Constraint("DistanceX", 0, 2, -1, 1, 5.75))
sketch8.addConstraint(Sketcher.Constraint("DistanceY", 0, 2, 0, 1, 0.936373))
pocket6 = doc.addObject("PartDesign::Pocket", "Pocket005")
body2.addObject(pocket6)
pocket6.Profile = sketch8
pocket6.Length = 12
pocket6.Reversed = True
doc.recompute()

datumplane = doc.addObject("PartDesign::Plane", "DatumPlane")
body2.addObject(datumplane)
datumplane.AttachmentSupport = (doc.getObject("XY_Plane001"), [""])
datumplane.MapMode = "FlatFace"
datumplane.AttachmentOffset = App.Placement(Vector(0, 0, 20.389899), App.Rotation())
mirrored = doc.addObject("PartDesign::Mirrored", "Mirrored")
body2.addObject(mirrored)
mirrored.Originals = [pocket6]
mirrored.MirrorPlane = (datumplane, [""])
body2.Tip = mirrored
mirroring.Visibility = False

doc.recompute()
